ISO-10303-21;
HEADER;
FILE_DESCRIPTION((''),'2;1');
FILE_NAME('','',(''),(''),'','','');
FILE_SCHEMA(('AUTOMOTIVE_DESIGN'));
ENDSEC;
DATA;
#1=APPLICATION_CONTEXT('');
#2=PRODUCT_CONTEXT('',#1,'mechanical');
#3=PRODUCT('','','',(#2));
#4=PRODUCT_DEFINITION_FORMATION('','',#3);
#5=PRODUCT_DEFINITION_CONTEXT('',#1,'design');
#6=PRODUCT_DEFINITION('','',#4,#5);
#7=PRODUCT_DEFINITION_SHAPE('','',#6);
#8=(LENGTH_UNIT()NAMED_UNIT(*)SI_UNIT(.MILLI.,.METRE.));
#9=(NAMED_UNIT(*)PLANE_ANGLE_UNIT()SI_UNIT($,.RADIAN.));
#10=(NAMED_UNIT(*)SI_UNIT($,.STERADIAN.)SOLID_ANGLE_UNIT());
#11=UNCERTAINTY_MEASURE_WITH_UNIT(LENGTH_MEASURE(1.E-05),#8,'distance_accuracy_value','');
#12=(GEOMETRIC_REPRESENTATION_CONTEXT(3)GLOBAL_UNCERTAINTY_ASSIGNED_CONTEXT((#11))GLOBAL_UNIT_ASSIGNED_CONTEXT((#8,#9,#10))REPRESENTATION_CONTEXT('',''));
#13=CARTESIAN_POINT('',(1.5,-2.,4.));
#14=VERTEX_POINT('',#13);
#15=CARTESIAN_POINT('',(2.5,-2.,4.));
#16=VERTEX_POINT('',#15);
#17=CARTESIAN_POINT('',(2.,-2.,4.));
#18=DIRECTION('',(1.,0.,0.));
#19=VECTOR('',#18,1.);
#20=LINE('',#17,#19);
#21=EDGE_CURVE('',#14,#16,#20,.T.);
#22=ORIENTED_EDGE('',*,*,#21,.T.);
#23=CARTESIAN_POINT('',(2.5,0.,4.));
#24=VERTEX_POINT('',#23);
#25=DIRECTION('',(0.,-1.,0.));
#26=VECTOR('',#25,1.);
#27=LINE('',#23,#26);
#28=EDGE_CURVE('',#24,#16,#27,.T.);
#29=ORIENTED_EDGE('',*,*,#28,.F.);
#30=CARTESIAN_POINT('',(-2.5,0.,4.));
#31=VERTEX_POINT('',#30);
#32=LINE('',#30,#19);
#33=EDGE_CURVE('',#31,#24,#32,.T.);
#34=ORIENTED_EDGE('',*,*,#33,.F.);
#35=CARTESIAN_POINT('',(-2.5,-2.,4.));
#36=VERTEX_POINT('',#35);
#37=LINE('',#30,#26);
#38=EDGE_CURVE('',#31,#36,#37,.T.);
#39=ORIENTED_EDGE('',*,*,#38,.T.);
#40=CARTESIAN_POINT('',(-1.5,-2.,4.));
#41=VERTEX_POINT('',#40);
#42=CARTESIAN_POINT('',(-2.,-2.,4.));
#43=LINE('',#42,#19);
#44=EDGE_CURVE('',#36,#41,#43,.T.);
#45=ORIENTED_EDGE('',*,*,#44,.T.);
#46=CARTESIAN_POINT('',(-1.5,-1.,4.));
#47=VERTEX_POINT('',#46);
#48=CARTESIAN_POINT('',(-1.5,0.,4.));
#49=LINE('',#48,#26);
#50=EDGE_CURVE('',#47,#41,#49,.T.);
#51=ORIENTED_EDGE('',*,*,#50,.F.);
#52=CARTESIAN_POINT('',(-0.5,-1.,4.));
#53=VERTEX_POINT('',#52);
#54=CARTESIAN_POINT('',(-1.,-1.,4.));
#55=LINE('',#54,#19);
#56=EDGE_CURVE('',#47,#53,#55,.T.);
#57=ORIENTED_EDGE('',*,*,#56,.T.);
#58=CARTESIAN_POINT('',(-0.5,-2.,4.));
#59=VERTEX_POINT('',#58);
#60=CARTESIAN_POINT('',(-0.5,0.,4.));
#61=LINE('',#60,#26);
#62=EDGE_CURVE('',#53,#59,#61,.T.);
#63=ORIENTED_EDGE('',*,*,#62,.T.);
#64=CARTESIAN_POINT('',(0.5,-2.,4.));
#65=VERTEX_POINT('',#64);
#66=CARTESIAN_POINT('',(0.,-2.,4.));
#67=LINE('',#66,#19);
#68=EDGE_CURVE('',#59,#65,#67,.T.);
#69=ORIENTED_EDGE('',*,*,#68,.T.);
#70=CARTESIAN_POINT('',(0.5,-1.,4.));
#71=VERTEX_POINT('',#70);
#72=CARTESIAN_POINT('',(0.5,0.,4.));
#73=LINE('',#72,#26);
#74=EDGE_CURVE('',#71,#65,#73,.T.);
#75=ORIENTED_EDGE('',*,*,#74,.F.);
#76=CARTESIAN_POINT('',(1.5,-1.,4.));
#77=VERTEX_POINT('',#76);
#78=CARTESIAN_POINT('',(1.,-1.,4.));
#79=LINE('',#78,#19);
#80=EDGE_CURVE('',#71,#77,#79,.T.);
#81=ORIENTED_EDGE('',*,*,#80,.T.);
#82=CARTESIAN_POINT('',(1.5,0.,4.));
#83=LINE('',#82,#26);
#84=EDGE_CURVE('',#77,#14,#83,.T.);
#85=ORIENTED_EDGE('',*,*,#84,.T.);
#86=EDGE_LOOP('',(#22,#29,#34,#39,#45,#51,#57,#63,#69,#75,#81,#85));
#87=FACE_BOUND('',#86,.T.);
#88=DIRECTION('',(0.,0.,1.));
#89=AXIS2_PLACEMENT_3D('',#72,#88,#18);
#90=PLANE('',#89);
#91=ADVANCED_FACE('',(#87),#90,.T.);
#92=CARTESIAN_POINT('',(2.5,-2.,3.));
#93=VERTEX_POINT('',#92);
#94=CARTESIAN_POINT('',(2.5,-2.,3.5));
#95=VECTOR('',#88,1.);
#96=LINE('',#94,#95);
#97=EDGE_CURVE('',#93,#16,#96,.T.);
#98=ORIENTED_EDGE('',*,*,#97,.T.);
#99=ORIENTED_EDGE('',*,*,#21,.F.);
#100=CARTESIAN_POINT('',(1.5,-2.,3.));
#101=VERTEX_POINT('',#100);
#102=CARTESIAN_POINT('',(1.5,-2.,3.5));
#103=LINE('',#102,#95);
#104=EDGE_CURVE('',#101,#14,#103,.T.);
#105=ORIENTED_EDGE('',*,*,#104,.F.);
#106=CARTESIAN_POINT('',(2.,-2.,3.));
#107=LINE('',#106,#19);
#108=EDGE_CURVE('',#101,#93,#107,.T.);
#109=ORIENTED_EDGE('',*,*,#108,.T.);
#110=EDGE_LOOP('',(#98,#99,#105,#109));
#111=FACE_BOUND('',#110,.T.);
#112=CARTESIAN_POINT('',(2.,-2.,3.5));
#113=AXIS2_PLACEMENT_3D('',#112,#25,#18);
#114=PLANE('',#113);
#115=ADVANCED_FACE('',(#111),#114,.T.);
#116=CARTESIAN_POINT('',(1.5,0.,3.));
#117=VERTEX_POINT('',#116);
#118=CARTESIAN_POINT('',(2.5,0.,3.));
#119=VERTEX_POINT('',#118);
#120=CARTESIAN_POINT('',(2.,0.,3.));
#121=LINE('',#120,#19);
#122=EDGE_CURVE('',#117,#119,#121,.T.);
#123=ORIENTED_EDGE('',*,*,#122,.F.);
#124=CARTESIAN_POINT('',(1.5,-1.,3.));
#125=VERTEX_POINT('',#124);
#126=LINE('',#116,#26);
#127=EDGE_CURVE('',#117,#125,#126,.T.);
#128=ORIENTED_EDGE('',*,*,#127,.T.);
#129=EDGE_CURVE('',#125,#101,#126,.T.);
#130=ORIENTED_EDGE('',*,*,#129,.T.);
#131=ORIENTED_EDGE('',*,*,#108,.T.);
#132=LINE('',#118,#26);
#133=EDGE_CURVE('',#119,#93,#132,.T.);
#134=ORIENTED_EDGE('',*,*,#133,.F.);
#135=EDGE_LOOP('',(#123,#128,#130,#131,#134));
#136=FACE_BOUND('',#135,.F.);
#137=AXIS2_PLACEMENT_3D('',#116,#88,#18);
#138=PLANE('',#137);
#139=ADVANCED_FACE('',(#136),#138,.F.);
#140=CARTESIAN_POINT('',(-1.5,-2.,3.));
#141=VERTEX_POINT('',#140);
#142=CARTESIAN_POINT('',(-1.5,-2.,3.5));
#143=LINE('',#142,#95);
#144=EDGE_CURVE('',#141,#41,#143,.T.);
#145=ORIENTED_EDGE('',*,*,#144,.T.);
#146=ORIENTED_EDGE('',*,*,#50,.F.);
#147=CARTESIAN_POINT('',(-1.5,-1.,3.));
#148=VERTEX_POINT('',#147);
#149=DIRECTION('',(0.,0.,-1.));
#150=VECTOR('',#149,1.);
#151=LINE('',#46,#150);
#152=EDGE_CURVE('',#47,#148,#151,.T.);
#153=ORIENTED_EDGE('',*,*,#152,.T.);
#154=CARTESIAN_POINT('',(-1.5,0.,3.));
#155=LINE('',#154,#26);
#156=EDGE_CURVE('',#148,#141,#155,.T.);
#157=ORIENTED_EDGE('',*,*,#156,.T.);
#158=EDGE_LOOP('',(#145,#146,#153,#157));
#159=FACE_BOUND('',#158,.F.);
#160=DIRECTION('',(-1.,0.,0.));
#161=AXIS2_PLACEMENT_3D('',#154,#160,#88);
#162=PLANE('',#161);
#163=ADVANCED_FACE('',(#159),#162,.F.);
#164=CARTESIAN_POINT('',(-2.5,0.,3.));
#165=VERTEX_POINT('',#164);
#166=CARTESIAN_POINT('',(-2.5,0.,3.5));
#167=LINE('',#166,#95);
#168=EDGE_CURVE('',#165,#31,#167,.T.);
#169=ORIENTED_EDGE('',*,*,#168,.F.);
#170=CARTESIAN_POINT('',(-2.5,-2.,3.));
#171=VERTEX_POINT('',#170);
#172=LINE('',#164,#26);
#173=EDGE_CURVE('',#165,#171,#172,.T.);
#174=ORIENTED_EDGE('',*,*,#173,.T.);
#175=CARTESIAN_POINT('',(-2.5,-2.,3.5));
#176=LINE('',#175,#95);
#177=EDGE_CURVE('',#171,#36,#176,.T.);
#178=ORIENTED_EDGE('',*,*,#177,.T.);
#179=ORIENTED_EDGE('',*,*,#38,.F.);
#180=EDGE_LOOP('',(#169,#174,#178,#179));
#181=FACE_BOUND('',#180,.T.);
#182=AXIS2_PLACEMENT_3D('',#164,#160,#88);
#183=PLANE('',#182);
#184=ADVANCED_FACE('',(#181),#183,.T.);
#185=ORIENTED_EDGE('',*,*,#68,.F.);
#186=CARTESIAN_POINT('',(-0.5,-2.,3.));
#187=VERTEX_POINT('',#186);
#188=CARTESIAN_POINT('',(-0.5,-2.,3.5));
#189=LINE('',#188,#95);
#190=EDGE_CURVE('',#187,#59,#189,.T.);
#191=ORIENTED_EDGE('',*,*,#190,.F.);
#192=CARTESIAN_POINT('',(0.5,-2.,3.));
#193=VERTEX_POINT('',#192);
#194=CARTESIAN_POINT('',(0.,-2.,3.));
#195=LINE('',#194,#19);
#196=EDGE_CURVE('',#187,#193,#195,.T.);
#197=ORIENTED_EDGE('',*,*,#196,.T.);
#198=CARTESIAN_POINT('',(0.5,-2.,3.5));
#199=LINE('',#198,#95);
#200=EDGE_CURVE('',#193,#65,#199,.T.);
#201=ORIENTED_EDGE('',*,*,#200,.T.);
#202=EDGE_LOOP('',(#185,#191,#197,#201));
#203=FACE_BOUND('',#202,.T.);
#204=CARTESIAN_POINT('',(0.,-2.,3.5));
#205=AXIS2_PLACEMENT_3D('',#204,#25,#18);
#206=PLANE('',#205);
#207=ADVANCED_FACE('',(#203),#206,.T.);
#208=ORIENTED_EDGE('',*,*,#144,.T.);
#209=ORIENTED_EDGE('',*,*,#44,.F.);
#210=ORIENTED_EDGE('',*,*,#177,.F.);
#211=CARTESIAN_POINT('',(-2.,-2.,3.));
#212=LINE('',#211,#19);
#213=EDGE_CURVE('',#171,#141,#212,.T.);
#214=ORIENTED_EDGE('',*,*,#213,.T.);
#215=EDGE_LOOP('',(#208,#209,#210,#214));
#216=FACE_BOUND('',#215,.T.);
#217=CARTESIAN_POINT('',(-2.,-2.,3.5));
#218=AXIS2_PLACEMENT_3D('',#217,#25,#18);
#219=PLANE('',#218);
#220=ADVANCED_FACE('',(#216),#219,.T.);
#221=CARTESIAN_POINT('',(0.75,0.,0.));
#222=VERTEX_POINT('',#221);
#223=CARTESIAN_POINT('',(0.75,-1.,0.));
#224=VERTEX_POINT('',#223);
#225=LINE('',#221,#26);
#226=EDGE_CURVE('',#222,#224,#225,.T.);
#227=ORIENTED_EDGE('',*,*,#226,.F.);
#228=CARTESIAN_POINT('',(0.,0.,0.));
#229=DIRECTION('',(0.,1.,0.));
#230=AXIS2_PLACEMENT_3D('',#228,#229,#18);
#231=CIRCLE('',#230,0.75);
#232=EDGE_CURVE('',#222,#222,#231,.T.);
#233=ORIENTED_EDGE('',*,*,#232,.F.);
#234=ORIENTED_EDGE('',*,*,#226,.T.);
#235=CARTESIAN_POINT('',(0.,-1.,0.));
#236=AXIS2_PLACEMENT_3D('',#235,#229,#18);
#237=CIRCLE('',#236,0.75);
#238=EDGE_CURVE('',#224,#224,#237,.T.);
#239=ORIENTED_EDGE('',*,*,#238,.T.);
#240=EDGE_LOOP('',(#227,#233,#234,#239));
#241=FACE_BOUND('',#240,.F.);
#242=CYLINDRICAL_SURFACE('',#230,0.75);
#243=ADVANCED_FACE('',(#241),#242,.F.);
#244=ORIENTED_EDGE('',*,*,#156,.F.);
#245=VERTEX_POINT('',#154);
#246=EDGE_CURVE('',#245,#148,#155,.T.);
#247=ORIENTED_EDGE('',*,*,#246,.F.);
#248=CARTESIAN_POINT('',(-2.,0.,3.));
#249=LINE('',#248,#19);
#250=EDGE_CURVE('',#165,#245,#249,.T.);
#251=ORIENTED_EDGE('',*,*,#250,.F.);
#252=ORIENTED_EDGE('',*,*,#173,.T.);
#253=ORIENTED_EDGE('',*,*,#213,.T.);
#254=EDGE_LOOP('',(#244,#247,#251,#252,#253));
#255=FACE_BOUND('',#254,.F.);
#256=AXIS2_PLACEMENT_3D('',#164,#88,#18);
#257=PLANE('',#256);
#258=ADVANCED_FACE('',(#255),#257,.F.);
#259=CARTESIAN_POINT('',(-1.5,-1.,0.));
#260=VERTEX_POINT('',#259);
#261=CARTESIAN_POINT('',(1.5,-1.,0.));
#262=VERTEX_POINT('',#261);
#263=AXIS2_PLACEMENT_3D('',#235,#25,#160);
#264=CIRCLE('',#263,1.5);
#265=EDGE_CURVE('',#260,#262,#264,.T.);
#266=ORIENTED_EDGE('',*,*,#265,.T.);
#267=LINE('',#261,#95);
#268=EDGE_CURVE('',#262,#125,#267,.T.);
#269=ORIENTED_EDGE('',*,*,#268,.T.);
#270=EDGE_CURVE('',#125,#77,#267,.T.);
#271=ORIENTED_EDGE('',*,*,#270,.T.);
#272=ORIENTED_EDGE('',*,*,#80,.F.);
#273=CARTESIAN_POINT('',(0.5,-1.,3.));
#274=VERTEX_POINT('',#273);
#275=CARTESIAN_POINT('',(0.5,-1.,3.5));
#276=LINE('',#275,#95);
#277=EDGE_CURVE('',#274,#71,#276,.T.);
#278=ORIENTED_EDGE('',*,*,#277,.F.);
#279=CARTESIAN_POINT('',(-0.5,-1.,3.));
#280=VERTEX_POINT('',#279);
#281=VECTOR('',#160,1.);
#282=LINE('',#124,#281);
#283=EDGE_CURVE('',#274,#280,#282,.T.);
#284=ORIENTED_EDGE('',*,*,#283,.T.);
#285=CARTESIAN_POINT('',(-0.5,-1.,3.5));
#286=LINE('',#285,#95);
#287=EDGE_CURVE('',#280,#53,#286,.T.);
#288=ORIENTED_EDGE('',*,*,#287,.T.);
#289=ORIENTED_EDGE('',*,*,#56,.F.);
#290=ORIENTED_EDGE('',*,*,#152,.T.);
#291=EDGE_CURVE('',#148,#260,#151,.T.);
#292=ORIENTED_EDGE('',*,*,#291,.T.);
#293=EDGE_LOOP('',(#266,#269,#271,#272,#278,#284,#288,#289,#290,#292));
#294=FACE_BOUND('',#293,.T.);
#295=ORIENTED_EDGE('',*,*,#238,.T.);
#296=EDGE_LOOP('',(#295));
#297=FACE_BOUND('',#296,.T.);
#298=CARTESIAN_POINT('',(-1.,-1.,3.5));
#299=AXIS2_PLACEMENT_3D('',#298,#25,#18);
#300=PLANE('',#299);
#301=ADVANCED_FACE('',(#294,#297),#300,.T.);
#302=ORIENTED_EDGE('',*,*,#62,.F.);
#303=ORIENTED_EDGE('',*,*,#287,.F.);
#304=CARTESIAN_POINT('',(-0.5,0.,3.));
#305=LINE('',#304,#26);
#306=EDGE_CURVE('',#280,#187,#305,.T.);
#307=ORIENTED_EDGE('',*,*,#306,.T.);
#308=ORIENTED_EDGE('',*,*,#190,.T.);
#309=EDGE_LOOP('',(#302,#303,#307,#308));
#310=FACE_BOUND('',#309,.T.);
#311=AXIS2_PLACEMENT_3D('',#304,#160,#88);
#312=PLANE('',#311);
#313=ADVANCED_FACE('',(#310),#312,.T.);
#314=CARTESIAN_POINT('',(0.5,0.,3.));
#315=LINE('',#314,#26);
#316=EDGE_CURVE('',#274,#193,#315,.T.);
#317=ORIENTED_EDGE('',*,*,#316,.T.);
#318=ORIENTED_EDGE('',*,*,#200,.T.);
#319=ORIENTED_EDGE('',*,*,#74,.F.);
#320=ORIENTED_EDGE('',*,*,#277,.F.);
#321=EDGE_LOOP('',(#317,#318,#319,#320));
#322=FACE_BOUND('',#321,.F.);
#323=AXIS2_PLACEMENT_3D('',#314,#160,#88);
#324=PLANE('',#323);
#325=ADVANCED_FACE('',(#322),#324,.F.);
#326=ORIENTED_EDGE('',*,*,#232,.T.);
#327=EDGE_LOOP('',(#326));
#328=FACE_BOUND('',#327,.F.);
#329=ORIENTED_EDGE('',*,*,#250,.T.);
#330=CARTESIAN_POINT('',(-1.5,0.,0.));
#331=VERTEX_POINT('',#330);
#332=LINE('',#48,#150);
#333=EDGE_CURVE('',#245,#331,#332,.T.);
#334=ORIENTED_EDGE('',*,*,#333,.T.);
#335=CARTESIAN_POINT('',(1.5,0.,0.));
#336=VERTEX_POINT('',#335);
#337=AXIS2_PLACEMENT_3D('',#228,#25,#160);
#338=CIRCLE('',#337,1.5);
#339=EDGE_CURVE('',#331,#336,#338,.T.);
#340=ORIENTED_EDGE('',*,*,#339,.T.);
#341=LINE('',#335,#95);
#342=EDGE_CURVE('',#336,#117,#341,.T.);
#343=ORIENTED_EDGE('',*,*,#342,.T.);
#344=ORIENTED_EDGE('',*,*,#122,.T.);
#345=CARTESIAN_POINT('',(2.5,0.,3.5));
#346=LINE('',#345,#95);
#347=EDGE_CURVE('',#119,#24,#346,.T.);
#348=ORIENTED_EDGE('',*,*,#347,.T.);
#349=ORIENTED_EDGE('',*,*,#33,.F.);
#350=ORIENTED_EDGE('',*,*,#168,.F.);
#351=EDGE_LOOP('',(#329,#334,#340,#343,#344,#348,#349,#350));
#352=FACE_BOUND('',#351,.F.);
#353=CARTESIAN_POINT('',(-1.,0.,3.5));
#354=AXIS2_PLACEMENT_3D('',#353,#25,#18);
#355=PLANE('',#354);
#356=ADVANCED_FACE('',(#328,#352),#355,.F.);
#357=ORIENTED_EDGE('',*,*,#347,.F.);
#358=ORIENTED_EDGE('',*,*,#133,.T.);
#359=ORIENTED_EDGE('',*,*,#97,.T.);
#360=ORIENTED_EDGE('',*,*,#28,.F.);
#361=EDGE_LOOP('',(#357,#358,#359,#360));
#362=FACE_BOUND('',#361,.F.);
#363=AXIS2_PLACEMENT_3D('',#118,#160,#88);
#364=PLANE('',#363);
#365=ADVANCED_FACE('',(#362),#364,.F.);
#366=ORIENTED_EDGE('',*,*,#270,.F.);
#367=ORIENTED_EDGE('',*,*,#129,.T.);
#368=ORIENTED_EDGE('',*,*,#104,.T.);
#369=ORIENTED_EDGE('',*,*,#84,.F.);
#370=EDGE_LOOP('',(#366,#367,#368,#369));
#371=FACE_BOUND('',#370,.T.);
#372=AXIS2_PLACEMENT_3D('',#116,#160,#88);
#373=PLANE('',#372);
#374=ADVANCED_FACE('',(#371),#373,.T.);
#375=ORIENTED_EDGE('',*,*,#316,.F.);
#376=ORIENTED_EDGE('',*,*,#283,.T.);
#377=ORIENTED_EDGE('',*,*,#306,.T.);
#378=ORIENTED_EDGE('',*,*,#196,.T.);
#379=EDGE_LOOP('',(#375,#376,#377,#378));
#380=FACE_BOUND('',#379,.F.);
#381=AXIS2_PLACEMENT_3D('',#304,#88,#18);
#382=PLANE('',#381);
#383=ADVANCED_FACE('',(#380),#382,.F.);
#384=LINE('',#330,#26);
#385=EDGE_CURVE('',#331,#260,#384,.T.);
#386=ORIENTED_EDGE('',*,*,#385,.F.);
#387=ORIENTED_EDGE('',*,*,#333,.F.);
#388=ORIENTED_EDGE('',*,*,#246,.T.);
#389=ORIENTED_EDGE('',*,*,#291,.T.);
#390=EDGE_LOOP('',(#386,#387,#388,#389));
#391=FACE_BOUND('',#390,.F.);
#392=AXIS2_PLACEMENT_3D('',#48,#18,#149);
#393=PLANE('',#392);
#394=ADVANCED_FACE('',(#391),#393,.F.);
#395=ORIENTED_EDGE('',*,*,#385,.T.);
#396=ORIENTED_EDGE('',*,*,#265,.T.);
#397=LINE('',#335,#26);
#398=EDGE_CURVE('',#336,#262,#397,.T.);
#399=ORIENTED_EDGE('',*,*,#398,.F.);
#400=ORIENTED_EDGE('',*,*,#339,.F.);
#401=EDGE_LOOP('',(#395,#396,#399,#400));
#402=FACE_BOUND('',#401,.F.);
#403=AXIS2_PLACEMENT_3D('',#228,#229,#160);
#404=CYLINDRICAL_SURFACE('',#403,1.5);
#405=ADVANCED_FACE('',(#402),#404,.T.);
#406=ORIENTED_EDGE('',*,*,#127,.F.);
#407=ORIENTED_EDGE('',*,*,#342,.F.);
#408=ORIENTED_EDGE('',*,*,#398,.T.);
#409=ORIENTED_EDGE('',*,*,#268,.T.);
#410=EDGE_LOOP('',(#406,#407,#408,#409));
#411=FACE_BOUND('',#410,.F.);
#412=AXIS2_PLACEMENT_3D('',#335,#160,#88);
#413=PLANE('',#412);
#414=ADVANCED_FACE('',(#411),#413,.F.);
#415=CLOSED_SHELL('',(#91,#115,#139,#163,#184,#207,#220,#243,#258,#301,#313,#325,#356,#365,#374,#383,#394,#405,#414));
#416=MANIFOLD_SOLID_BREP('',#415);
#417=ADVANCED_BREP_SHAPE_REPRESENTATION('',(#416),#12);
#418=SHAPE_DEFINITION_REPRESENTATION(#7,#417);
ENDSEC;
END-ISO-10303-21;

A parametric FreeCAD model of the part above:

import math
import FreeCAD as App
import Part
import Sketcher


def add_polygon(sketch, points):
    """Adds a closed chain of lines whose ends are joined by coincident constraints."""
    first, n = sketch.GeometryCount, len(points)
    for a, b in zip(points, points[1:] + points[:1]):
        sketch.addGeometry(Part.LineSegment(App.Vector(*a, 0), App.Vector(*b, 0)), False)
    for i in range(n):
        sketch.addConstraint(Sketcher.Constraint("Coincident", first + i, 2, first + (i + 1) % n, 1))

doc = App.newDocument("Part")
body = doc.addObject("PartDesign::Body", "Body")

# Sketch on XZ plane
sketch1 = body.newObject("Sketcher::SketchObject", "Sketch")
sketch1.AttachmentSupport = (doc.getObject("XZ_Plane"), [""])
sketch1.MapMode = "FlatFace"
add_polygon(sketch1, [(-2.5, 4), (-2.5, 3), (-1.5, 3), (-1.5, 4)])  # lines 0-3
sketch1.addConstraint([
    Sketcher.Constraint("Vertical", 0),
    Sketcher.Constraint("Horizontal", 1),
    Sketcher.Constraint("Vertical", 2),
    Sketcher.Constraint("Horizontal", 3),
    Sketcher.Constraint("Equal", 3, 0),
    Sketcher.Constraint("DistanceX", 1, 1, 1, 2, 1.0),
    Sketcher.Constraint("DistanceY", -1, 1, 0, 2, 3.0),
    Sketcher.Constraint("DistanceX", 0, 2, -1, 1, 2.5),
])
pad1 = body.newObject("PartDesign::Pad", "Pad")
pad1.Profile = sketch1
pad1.Length = 2
body2 = doc.addObject("PartDesign::Body", "Body001")

# Sketch on XZ plane
sketch2 = body2.newObject("Sketcher::SketchObject", "Sketch001")
sketch2.AttachmentSupport = (doc.getObject("XZ_Plane001"), [""])
sketch2.MapMode = "FlatFace"
add_polygon(sketch2, [(-0.5, 4), (-0.5, 3), (0.5, 3), (0.5, 4)])  # lines 0-3
sketch2.addConstraint([
    Sketcher.Constraint("Vertical", 0),
    Sketcher.Constraint("Horizontal", 1),
    Sketcher.Constraint("Vertical", 2),
    Sketcher.Constraint("Horizontal", 3),
    Sketcher.Constraint("Equal", 3, 0),
    Sketcher.Constraint("DistanceX", 1, 1, 1, 2, 1.0),
    Sketcher.Constraint("DistanceY", -1, 1, 0, 2, 3.0),
    Sketcher.Constraint("DistanceX", 0, 2, -1, 1, 0.5),
])
pad2 = body2.newObject("PartDesign::Pad", "Pad001")
pad2.Profile = sketch2
pad2.Length = 2
body3 = doc.addObject("PartDesign::Body", "Body002")

# Sketch on XZ plane
sketch3 = body3.newObject("Sketcher::SketchObject", "Sketch002")
sketch3.AttachmentSupport = (doc.getObject("XZ_Plane002"), [""])
sketch3.MapMode = "FlatFace"
add_polygon(sketch3, [(1.5, 4), (1.5, 3), (2.5, 3), (2.5, 4)])  # lines 0-3
sketch3.addConstraint([
    Sketcher.Constraint("Vertical", 0),
    Sketcher.Constraint("Horizontal", 1),
    Sketcher.Constraint("Vertical", 2),
    Sketcher.Constraint("Horizontal", 3),
    Sketcher.Constraint("Equal", 3, 0),
    Sketcher.Constraint("DistanceX", 1, 1, 1, 2, 1.0),
    Sketcher.Constraint("DistanceY", -1, 1, 0, 2, 3.0),
    Sketcher.Constraint("DistanceX", -1, 1, 0, 2, 1.5),
])
pad3 = body3.newObject("PartDesign::Pad", "Pad002")
pad3.Profile = sketch3
pad3.Length = 2
body.AllowCompound = True
doc.recompute()

boolean = body.newObject("PartDesign::Boolean", "Boolean")
boolean.Type = "Fuse"
boolean.addObjects([body2])
doc.recompute()

boolean2 = body.newObject("PartDesign::Boolean", "Boolean001")
boolean2.Type = "Fuse"
boolean2.addObjects([body3])

# Sketch on XZ plane
sketch4 = body.newObject("Sketcher::SketchObject", "Sketch003")
sketch4.AttachmentSupport = (doc.getObject("XZ_Plane"), [""])
sketch4.MapMode = "FlatFace"
sketch4.addGeometry([
    Part.LineSegment(App.Vector(-1.5, 4, 0), App.Vector(-1.5, 0, 0)),  # 0
    Part.ArcOfCircle(Part.Circle(App.Vector(0, 0, 0), App.Vector(0, 0, 1), 1.5), math.radians(180), math.radians(360)),  # 1
    Part.LineSegment(App.Vector(1.5, 0, 0), App.Vector(1.5, 4, 0)),  # 2
    Part.LineSegment(App.Vector(1.5, 4, 0), App.Vector(0.5, 4, 0)),  # 3
    Part.LineSegment(App.Vector(0.5, 4, 0), App.Vector(0.5, 3, 0)),  # 4
    Part.LineSegment(App.Vector(0.5, 3, 0), App.Vector(-0.5, 3, 0)),  # 5
    Part.LineSegment(App.Vector(-0.5, 3, 0), App.Vector(-0.5, 4, 0)),  # 6
    Part.LineSegment(App.Vector(-0.5, 4, 0), App.Vector(-1.5, 4, 0)),  # 7
    Part.Circle(App.Vector(0, 0, 0), App.Vector(0, 0, 1), 0.75),  # 8
], False)
sketch4.addConstraint([
    Sketcher.Constraint("Tangent", 0, 2, 1, 1),
    Sketcher.Constraint("Tangent", 1, 2, 2, 1),
    Sketcher.Constraint("Coincident", 2, 2, 3, 1),
    Sketcher.Constraint("Coincident", 3, 2, 4, 1),
    Sketcher.Constraint("Coincident", 4, 2, 5, 1),
    Sketcher.Constraint("Coincident", 5, 2, 6, 1),
    Sketcher.Constraint("Coincident", 6, 2, 7, 1),
    Sketcher.Constraint("Coincident", 7, 2, 0, 1),
    Sketcher.Constraint("Vertical", 0),
    Sketcher.Constraint("Vertical", 2),
    Sketcher.Constraint("Horizontal", 3),
    Sketcher.Constraint("Vertical", 4),
    Sketcher.Constraint("Horizontal", 5),
    Sketcher.Constraint("Vertical", 6),
    Sketcher.Constraint("Horizontal", 7),
    Sketcher.Constraint("Coincident", 1, 3, -1, 1),
    Sketcher.Constraint("Coincident", 8, 3, -1, 1),
    Sketcher.Constraint("Symmetric", 3, 2, 6, 2, -2),
    Sketcher.Constraint("Equal", 3, 5),
    Sketcher.Constraint("Equal", 7, 4),
    Sketcher.Constraint("Diameter", 8, 1.5),
    Sketcher.Constraint("Radius", 1, 1.5),
    Sketcher.Constraint("DistanceY", 0, 2, 0, 1, 4.0),
])
pad4 = body.newObject("PartDesign::Pad", "Pad003")
pad4.Profile = sketch4
pad4.Length = 1

doc.recompute()
